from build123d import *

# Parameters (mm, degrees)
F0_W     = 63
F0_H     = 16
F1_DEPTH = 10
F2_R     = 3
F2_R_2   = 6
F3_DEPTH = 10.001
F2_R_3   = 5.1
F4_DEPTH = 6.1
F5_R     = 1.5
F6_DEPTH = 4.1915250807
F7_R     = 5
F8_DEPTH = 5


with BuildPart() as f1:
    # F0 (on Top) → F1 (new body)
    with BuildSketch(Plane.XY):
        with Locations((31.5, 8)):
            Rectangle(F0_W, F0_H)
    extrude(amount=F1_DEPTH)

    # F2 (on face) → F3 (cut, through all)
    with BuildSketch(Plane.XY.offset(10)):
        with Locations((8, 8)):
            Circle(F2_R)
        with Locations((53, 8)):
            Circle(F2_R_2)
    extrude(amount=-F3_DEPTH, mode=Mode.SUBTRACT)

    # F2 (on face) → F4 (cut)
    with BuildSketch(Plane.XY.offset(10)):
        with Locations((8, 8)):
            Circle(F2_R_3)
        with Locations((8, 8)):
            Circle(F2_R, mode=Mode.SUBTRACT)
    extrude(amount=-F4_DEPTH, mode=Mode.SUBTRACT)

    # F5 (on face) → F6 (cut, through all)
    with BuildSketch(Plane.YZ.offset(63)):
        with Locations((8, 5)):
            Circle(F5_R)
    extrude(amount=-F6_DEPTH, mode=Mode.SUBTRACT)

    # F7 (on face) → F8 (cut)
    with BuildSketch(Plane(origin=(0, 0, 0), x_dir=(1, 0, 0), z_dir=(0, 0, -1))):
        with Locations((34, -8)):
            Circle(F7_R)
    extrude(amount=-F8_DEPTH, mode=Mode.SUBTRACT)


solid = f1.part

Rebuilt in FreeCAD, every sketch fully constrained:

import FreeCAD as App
import Part
import Sketcher

doc = App.newDocument("Part")
body = doc.addObject("PartDesign::Body", "Body")

sketch1 = body.newObject("Sketcher::SketchObject", "Sketch")
sketch1.AttachmentSupport = (doc.getObject("XY_Plane"), [""])
sketch1.MapMode = "FlatFace"
sketch1.addGeometry([
    Part.LineSegment(App.Vector(0, 16, 0), App.Vector(0, 0, 0)),
    Part.LineSegment(App.Vector(0, 0, 0), App.Vector(63, 0, 0)),
    Part.LineSegment(App.Vector(63, 0, 0), App.Vector(63, 16, 0)),
    Part.LineSegment(App.Vector(63, 16, 0), App.Vector(0, 16, 0)),
], False)
sketch1.addConstraint([
    Sketcher.Constraint("Coincident", 0, 2, 1, 1),
    Sketcher.Constraint("Coincident", 1, 2, 2, 1),
    Sketcher.Constraint("Coincident", 2, 2, 3, 1),
    Sketcher.Constraint("Coincident", 3, 2, 0, 1),
    Sketcher.Constraint("Vertical", 0),
    Sketcher.Constraint("Horizontal", 1),
    Sketcher.Constraint("Vertical", 2),
    Sketcher.Constraint("Horizontal", 3),
    Sketcher.Constraint("Coincident", 0, 2, -1, 1),
    Sketcher.Constraint("DistanceX", 1, 1, 1, 2, 63.0),
    Sketcher.Constraint("DistanceY", 0, 2, 0, 1, 16.0),
])
pad1 = body.newObject("PartDesign::Pad", "Pad")
pad1.Profile = sketch1
pad1.Length = 10

sketch2 = body.newObject("Sketcher::SketchObject", "Sketch001")
sketch2.AttachmentSupport = (doc.getObject("XY_Plane"), [""])
sketch2.MapMode = "FlatFace"
sketch2.AttachmentOffset = App.Placement(App.Vector(0, 0, 10), App.Rotation())
sketch2.addGeometry([
    Part.Circle(App.Vector(8, 8, 0), App.Vector(0, 0, 1), 3),
    Part.Circle(App.Vector(53, 8, 0), App.Vector(0, 0, 1), 6),
], False)
sketch2.addConstraint([
    Sketcher.Constraint("Horizontal", 0, 3, 1, 3),
    Sketcher.Constraint("Diameter", 0, 6.0),
    Sketcher.Constraint("Diameter", 1, 12.0),
    Sketcher.Constraint("DistanceX", -1, 1, 0, 3, 8.0),
    Sketcher.Constraint("DistanceY", -1, 1, 0, 3, 8.0),
    Sketcher.Constraint("DistanceX", -1, 1, 1, 3, 53.0),
])
pocket1 = body.newObject("PartDesign::Pocket", "Pocket")
pocket1.Profile = sketch2
pocket1.Type = "ThroughAll"

sketch3 = body.newObject("Sketcher::SketchObject", "Sketch002")
sketch3.AttachmentSupport = (doc.getObject("XY_Plane"), [""])
sketch3.MapMode = "FlatFace"
sketch3.AttachmentOffset = App.Placement(App.Vector(0, 0, 10), App.Rotation())
sketch3.addGeometry([
    Part.Circle(App.Vector(8, 8, 0), App.Vector(0, 0, 1), 5.1),
    Part.Circle(App.Vector(8, 8, 0), App.Vector(0, 0, 1), 3),
], False)
sketch3.addConstraint([
    Sketcher.Constraint("Coincident", 1, 3, 0, 3),
    Sketcher.Constraint("Diameter", 1, 6.0),
    Sketcher.Constraint("Diameter", 0, 10.2),
    Sketcher.Constraint("DistanceX", -1, 1, 0, 3, 8.0),
    Sketcher.Constraint("DistanceY", -1, 1, 0, 3, 8.0),
])
pocket2 = body.newObject("PartDesign::Pocket", "Pocket001")
pocket2.Profile = sketch3
pocket2.Length = 6.1

sketch4 = body.newObject("Sketcher::SketchObject", "Sketch003")
sketch4.AttachmentSupport = (doc.getObject("YZ_Plane"), [""])
sketch4.MapMode = "FlatFace"
sketch4.AttachmentOffset = App.Placement(App.Vector(0, 0, 63), App.Rotation())
sketch4.addGeometry(Part.Circle(App.Vector(8, 5, 0), App.Vector(0, 0, 1), 1.5), False)
sketch4.addConstraint([
    Sketcher.Constraint("Diameter", 0, 3.0),
    Sketcher.Constraint("DistanceX", -1, 1, 0, 3, 8.0),
    Sketcher.Constraint("DistanceY", -1, 1, 0, 3, 5.0),
])
pocket3 = body.newObject("PartDesign::Pocket", "Pocket002")
pocket3.Profile = sketch4
pocket3.Length = 4.191525

sketch5 = body.newObject("Sketcher::SketchObject", "Sketch004")
sketch5.AttachmentSupport = (doc.getObject("XY_Plane"), [""])
sketch5.MapMode = "FlatFace"
sketch5.addGeometry(Part.Circle(App.Vector(34, 8, 0), App.Vector(0, 0, 1), 5), False)
sketch5.addConstraint([
    Sketcher.Constraint("Diameter", 0, 10.0),
    Sketcher.Constraint("DistanceX", -1, 1, 0, 3, 34.0),
    Sketcher.Constraint("DistanceY", -1, 1, 0, 3, 8.0),
])
pocket4 = body.newObject("PartDesign::Pocket", "Pocket003")
pocket4.Profile = sketch5
pocket4.Length = 5
pocket4.Reversed = True

doc.recompute()
